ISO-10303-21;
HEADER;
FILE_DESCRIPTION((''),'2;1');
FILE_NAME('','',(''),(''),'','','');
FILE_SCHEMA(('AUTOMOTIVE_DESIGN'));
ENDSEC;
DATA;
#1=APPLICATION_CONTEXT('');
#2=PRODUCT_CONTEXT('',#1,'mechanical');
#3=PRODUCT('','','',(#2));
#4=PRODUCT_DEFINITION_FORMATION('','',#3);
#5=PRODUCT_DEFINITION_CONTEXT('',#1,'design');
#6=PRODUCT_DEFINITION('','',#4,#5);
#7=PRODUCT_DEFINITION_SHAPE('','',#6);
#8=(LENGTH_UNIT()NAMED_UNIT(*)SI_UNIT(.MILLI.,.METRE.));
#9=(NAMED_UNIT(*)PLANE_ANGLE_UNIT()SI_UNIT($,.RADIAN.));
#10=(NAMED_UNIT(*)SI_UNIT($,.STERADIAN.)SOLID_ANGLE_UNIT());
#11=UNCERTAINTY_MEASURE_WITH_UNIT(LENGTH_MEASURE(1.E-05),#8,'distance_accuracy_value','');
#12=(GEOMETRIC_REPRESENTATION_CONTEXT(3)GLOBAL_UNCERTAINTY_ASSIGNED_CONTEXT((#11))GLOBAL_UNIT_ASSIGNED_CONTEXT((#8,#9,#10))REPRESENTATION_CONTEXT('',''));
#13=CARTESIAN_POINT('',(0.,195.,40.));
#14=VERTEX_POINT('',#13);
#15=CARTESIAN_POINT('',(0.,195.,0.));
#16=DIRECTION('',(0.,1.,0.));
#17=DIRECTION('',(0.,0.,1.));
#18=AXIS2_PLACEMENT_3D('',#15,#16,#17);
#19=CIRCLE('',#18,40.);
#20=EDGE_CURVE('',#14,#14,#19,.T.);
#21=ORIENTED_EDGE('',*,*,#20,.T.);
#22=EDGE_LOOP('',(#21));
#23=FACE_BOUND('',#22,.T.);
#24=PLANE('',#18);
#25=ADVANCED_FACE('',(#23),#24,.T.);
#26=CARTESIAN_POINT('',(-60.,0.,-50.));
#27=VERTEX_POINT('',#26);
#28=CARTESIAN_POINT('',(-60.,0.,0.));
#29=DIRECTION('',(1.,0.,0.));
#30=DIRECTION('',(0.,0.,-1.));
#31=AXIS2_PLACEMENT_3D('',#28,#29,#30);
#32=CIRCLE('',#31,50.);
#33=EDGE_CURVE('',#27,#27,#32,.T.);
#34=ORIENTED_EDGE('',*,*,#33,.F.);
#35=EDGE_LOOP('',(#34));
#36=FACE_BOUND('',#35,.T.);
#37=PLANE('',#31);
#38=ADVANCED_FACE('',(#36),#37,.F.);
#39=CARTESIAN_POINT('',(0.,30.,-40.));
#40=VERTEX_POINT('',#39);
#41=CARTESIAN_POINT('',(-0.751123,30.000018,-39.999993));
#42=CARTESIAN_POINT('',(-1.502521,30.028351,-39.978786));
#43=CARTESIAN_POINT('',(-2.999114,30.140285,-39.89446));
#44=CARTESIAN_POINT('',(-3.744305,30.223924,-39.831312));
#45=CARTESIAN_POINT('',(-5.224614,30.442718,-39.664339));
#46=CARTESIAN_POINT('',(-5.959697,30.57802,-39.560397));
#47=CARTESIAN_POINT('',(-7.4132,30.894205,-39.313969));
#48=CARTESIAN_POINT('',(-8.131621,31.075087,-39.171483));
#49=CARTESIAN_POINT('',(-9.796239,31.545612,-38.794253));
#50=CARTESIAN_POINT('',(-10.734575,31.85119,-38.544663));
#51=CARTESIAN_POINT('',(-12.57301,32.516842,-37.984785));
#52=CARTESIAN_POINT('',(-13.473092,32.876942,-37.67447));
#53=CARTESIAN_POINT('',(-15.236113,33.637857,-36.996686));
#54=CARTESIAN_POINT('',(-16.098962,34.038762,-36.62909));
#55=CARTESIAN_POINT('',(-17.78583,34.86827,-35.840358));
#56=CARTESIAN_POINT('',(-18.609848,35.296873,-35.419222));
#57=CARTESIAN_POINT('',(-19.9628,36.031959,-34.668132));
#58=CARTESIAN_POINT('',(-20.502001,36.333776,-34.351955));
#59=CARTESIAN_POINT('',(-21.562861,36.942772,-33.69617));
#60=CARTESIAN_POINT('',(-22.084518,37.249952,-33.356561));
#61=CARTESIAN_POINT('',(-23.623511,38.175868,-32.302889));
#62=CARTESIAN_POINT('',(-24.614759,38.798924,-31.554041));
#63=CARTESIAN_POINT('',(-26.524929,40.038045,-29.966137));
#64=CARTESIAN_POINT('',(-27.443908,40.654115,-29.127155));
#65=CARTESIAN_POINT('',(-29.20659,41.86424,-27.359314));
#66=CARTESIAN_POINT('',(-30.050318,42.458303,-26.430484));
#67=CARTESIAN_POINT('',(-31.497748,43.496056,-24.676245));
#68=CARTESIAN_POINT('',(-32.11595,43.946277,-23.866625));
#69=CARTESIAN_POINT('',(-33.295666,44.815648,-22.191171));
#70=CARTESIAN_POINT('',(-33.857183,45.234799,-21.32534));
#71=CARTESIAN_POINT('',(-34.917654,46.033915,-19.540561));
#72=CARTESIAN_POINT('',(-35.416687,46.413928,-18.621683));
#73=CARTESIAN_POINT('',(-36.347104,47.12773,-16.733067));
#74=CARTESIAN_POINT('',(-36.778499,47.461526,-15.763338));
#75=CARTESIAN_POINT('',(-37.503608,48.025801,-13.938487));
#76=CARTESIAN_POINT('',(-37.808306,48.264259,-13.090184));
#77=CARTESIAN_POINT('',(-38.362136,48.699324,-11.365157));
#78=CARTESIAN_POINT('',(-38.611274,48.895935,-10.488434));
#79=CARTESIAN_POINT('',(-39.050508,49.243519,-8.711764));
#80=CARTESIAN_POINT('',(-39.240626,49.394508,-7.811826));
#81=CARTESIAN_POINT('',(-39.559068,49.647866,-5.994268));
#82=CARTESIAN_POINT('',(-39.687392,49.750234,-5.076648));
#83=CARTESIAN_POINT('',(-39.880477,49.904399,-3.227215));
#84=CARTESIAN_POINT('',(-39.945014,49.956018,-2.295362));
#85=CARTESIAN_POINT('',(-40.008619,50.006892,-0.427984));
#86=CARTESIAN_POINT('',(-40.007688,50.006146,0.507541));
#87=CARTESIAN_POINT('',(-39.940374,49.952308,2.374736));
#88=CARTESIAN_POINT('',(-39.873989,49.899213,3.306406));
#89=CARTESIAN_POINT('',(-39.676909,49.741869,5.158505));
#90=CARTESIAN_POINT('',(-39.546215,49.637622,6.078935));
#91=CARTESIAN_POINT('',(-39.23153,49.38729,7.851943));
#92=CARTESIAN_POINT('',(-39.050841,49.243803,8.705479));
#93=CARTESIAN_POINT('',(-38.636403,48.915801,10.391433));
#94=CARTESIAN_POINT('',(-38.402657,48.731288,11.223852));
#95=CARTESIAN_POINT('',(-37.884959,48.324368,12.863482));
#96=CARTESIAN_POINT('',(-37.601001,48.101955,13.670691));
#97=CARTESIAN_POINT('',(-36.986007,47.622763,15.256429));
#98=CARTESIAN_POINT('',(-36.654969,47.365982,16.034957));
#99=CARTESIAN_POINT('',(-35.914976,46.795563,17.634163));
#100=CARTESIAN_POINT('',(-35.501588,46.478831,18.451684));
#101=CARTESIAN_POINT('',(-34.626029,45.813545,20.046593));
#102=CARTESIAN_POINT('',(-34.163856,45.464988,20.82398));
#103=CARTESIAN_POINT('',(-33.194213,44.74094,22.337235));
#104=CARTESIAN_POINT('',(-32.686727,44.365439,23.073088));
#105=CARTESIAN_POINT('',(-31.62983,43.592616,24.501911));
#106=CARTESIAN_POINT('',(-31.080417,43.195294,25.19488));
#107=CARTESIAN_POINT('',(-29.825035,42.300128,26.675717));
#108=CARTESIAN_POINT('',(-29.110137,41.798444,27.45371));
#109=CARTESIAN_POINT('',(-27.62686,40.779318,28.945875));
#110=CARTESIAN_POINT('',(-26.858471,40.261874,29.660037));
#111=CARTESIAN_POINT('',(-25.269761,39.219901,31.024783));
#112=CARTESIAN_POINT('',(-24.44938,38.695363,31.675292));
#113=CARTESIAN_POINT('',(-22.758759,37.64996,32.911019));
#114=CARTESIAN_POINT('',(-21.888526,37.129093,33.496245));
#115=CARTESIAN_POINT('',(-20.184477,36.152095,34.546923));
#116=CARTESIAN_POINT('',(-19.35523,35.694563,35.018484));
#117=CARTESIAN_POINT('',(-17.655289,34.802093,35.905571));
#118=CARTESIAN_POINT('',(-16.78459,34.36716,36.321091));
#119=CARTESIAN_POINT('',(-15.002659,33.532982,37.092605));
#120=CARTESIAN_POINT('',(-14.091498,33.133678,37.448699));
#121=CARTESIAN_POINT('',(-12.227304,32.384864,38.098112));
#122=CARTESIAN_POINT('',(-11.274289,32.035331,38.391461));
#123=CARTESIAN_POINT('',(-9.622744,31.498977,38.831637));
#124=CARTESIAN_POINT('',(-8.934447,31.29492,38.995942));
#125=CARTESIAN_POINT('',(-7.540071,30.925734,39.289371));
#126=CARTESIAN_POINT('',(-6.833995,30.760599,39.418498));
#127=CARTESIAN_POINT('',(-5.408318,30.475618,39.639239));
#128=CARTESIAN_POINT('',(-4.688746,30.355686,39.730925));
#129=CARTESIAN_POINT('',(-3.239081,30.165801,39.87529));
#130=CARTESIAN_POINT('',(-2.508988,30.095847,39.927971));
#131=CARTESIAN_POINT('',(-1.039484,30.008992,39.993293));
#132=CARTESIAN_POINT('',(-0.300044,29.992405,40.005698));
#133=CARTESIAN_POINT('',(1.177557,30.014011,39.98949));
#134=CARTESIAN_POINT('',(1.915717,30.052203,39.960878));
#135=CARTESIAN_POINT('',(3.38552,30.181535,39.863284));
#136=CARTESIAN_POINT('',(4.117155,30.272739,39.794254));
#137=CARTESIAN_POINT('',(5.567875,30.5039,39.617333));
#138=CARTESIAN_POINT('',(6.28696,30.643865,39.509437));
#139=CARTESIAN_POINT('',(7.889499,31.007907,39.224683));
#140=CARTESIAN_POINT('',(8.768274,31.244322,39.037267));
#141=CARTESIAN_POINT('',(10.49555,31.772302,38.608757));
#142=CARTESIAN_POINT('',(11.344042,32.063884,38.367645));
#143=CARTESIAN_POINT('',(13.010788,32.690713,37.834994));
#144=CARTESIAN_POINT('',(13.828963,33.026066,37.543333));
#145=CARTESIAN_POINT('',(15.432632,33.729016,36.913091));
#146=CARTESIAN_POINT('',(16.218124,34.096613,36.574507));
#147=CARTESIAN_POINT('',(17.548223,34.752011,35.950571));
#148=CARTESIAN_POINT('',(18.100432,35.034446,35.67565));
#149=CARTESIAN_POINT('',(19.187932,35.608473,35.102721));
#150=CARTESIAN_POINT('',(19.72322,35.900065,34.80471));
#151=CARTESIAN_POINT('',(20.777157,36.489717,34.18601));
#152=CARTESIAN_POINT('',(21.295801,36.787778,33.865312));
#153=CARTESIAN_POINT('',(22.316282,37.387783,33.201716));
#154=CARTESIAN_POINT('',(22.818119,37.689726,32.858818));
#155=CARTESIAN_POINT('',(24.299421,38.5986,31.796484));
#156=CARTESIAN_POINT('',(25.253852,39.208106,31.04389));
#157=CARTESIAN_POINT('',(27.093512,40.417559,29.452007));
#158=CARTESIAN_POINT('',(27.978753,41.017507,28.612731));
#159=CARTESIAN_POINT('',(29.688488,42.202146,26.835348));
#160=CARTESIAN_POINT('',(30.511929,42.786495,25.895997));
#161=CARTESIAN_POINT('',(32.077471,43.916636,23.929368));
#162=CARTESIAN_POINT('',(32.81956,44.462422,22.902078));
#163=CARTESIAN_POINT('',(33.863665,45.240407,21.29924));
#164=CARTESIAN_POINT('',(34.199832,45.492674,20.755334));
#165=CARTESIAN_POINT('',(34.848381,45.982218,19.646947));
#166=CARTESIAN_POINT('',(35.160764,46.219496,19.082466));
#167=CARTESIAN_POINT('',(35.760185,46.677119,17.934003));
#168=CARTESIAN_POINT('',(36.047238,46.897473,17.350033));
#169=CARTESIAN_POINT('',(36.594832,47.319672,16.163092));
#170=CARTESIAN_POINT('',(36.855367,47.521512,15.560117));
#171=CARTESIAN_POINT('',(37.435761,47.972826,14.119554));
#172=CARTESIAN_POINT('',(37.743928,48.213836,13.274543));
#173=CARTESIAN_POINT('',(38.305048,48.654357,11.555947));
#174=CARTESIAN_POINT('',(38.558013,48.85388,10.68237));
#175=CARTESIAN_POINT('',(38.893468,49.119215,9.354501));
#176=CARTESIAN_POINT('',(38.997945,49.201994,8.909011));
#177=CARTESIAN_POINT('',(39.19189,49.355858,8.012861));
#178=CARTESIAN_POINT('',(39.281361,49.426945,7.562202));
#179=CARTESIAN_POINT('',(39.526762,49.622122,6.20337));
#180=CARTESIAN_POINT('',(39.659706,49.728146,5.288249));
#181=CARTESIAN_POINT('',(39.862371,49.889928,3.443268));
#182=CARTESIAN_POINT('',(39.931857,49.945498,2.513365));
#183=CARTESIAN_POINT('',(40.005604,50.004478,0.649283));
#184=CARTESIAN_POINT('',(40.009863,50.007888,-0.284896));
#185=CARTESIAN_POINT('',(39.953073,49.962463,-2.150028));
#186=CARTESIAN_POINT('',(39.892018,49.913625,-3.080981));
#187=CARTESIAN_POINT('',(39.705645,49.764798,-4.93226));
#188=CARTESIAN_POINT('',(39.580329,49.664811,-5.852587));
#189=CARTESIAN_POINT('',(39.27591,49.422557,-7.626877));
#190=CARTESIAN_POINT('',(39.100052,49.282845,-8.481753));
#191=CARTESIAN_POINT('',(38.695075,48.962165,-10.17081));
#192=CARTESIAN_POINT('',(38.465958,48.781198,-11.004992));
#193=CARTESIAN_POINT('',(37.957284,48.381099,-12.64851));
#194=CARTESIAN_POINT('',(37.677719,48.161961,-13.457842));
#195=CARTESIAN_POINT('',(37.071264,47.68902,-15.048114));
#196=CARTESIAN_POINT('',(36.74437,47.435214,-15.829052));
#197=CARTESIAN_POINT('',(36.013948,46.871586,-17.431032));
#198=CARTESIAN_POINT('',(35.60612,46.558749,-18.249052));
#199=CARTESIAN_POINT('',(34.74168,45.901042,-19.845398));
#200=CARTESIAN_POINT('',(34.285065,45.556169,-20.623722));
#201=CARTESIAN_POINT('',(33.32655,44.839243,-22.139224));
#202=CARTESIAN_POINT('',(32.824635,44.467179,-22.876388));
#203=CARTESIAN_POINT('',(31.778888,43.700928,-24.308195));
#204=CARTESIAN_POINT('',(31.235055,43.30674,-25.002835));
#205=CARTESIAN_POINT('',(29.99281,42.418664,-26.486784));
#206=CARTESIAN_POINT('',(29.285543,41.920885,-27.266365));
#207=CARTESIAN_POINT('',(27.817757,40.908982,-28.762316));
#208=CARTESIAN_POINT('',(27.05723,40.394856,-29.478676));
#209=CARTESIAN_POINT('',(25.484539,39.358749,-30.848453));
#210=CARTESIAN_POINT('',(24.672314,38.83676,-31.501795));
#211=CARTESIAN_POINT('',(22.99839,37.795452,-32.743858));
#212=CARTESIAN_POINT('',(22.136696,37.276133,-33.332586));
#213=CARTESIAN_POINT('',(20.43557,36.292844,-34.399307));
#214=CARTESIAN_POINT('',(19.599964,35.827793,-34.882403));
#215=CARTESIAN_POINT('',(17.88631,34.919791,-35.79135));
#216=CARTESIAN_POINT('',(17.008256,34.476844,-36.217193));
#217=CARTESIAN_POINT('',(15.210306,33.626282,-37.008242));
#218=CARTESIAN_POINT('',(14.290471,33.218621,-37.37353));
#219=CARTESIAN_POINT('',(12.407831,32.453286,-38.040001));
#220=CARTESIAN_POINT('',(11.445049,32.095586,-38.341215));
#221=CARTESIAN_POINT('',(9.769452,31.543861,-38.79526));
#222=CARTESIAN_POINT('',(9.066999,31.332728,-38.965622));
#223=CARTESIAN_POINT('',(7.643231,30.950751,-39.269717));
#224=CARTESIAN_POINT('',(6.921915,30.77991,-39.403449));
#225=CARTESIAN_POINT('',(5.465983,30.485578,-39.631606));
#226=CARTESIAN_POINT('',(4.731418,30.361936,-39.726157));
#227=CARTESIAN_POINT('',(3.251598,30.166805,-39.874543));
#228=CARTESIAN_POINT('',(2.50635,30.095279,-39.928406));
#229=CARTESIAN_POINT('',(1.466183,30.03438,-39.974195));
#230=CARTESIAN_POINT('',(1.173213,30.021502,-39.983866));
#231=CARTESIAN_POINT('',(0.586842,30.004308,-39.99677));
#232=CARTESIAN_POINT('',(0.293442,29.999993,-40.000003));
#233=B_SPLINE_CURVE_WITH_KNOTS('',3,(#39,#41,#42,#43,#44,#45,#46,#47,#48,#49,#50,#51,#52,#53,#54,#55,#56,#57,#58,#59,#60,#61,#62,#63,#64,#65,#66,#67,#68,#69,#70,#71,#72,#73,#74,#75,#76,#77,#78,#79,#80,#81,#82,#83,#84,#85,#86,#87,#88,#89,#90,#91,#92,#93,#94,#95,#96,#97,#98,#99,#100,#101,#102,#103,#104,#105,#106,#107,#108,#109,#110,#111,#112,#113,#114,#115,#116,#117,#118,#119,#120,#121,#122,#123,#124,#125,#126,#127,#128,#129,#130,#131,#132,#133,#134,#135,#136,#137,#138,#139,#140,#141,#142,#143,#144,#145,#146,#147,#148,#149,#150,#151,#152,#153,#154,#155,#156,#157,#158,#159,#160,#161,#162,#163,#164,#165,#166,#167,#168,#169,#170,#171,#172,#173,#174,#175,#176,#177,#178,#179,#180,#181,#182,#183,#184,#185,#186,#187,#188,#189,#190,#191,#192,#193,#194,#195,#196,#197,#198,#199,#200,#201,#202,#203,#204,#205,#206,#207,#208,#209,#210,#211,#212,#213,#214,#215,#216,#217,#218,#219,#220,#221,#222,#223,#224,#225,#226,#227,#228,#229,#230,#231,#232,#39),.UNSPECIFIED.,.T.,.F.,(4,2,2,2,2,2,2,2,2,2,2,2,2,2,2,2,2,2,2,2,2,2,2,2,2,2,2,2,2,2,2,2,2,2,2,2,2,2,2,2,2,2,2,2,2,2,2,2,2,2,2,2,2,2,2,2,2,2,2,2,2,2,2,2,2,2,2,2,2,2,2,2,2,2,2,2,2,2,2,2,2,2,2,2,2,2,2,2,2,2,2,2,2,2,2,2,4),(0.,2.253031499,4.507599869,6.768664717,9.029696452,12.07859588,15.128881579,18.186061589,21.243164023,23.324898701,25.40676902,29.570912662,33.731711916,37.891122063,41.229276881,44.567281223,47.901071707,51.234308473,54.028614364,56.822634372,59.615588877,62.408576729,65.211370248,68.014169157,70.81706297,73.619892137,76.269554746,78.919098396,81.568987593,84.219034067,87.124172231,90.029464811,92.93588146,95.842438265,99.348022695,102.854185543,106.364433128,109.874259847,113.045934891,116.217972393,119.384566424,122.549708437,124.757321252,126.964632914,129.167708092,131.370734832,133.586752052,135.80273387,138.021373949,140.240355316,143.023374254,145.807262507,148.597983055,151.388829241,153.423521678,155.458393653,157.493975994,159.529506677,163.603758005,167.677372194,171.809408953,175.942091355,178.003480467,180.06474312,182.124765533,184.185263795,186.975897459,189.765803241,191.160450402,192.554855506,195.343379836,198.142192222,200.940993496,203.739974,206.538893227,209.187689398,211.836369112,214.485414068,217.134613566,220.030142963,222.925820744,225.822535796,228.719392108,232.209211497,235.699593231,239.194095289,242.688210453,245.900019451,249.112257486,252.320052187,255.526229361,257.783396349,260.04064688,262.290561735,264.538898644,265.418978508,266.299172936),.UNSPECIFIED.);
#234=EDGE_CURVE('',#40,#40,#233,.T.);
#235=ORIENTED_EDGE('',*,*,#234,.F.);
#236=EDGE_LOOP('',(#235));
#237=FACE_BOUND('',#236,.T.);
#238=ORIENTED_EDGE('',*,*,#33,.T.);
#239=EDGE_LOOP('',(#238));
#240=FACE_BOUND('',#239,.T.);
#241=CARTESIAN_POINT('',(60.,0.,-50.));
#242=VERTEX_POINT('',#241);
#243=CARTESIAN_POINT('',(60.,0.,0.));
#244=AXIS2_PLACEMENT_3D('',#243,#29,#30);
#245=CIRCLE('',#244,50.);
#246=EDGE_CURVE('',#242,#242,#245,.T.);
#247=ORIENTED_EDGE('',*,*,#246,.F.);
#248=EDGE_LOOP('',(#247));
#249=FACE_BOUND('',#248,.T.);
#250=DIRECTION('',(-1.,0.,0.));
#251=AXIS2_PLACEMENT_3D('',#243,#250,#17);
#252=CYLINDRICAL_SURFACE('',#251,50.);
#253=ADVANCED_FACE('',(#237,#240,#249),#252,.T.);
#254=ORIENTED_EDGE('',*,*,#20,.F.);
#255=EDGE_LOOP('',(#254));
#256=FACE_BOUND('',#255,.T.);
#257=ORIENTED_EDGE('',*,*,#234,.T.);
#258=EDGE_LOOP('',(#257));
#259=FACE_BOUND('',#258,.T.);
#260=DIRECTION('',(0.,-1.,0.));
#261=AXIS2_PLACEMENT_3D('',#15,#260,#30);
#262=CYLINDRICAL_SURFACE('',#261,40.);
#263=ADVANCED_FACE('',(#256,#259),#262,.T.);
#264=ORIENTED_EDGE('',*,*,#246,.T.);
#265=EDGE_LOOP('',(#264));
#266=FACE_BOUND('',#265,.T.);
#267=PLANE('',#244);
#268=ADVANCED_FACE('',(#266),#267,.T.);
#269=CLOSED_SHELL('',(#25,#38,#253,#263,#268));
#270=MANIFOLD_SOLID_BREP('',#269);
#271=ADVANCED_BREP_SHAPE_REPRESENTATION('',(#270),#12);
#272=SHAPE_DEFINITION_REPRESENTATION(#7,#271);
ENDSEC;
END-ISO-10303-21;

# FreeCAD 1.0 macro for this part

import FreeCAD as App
import Part
import Sketcher
from FreeCAD import Vector
Q = App.Units.Quantity

doc = App.newDocument("Part")
body = doc.addObject("PartDesign::Body", "Body")

# Sketch on YZ plane
sketch1 = body.newObject("Sketcher::SketchObject", "Sketch")
sketch1.AttachmentSupport = (doc.getObject("YZ_Plane"), [""])
sketch1.MapMode = "FlatFace"
sketch1.addGeometry(Part.Circle(Vector(0, 0, 0), Vector(0, 0, 1), 50), False)
sketch1.addConstraint(Sketcher.Constraint("Coincident", 0, 3, -1, 1))
sketch1.addConstraint(Sketcher.Constraint("Diameter", 0, Q("100 mm")))
pad1 = body.newObject("PartDesign::Pad", "Pad")
pad1.Profile = sketch1
pad1.Length = 120
pad1.Midplane = True

# Sketch on XZ plane
sketch2 = body.newObject("Sketcher::SketchObject", "Sketch001")
sketch2.AttachmentSupport = (doc.getObject("XZ_Plane"), [""])
sketch2.MapMode = "FlatFace"
sketch2.addGeometry(Part.Circle(Vector(0, 0, 0), Vector(0, 0, 1), 40), False)
sketch2.addConstraint(Sketcher.Constraint("Coincident", 0, 3, -1, 1))
sketch2.addConstraint(Sketcher.Constraint("Diameter", 0, Q("80 mm")))
pad2 = body.newObject("PartDesign::Pad", "Pad001")
pad2.Profile = sketch2
pad2.Length = 195
pad2.Reversed = True

doc.recompute()
